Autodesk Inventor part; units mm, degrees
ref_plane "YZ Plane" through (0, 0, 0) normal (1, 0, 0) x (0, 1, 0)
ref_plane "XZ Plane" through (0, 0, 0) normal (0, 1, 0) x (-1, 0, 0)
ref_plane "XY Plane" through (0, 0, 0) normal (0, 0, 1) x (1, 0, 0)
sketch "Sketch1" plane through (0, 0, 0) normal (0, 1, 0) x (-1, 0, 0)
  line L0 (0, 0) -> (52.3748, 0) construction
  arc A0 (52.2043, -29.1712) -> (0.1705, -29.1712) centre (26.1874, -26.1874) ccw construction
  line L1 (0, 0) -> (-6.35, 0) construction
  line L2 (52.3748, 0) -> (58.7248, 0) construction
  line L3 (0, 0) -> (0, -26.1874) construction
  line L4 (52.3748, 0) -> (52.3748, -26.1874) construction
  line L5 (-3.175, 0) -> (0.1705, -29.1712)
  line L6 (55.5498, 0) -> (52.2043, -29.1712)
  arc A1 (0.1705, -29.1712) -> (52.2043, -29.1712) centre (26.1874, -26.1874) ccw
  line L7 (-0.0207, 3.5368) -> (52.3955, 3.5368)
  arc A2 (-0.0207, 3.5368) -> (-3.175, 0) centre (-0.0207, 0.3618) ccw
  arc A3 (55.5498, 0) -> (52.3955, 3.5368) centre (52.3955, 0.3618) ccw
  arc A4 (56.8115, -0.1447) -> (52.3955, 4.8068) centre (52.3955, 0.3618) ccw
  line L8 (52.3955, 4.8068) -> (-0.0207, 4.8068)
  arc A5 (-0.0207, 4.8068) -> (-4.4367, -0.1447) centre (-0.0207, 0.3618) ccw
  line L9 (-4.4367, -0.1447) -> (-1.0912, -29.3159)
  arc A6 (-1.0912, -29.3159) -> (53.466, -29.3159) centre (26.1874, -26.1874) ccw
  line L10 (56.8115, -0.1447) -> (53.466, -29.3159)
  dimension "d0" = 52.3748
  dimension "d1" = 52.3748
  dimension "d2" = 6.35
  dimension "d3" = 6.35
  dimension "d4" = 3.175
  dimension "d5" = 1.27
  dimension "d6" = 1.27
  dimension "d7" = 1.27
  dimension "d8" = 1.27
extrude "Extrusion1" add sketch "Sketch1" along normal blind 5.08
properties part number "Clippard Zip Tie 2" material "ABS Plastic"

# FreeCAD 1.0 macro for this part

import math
import FreeCAD as App
import Part
import Sketcher
Q = App.Units.Quantity

doc = App.newDocument("Part")
params = doc.addObject("Spreadsheet::Sheet", "Params")
for row, (alias, value) in enumerate([
    ("sketch1_radius", "0.125 in"),
    ("sketch1_radius2", "1.031 in"),
    ("sketch1_length", "1.156 in"),
    ("pad1_length", "0.2 in"),
], start=1):
    params.set(f"A{row}", alias)
    params.set(f"B{row}", "=" + value)
    params.setAlias(f"B{row}", alias)

body = doc.addObject("PartDesign::Body", "Body")

sketch1 = body.newObject("Sketcher::SketchObject", "Sketch")
sketch1.AttachmentSupport = (doc.getObject("XZ_Plane"), [""])
sketch1.MapMode = "FlatFace"
sketch1.addGeometry([
    Part.LineSegment(App.Vector(-53.466, -29.3159, 0), App.Vector(-56.8115, -0.1447, 0)),
    Part.ArcOfCircle(Part.Circle(App.Vector(-52.3955, 0.3618, 0), App.Vector(0, 0, 1), 4.444952), math.radians(90), math.radians(186.543037)),
    Part.LineSegment(App.Vector(-52.3955, 4.8068, 0), App.Vector(0.0207, 4.8068, 0)),
    Part.ArcOfCircle(Part.Circle(App.Vector(0.0207, 0.3618, 0), App.Vector(0, 0, 1), 4.445), math.radians(-6.543037), math.radians(90)),
    Part.LineSegment(App.Vector(4.4367, -0.1447, 0), App.Vector(1.0912, -29.3159, 0)),
    Part.ArcOfCircle(Part.Circle(App.Vector(-26.1874, -26.1874, 0), App.Vector(0, 0, 1), 27.457413), math.radians(-173.457505), math.radians(-6.542495)),
    Part.LineSegment(App.Vector(-0.1705, -29.1712, 0), App.Vector(3.175, 0, 0)),
    Part.ArcOfCircle(Part.Circle(App.Vector(0.0207, 0.3618, 0), App.Vector(0, 0, 1), 3.175), math.radians(-6.543264), math.radians(90)),
    Part.LineSegment(App.Vector(0.0207, 3.5368, 0), App.Vector(-52.3955, 3.5368, 0)),
    Part.ArcOfCircle(Part.Circle(App.Vector(-52.3955, 0.3618, 0), App.Vector(0, 0, 1), 3.174982), math.radians(90), math.radians(186.543264)),
    Part.LineSegment(App.Vector(-55.5498, 0, 0), App.Vector(-52.2043, -29.1712, 0)),
    Part.ArcOfCircle(Part.Circle(App.Vector(-26.1874, -26.1874, 0), App.Vector(0, 0, 1), 26.187443), math.radians(-173.457504), math.radians(-6.542496)),
], False)
sketch1.addConstraint([
    Sketcher.Constraint("Tangent", 0, 2, 1, 2),
    Sketcher.Constraint("Tangent", 1, 1, 2, 1),
    Sketcher.Constraint("Tangent", 2, 2, 3, 2),
    Sketcher.Constraint("Tangent", 3, 1, 4, 1),
    Sketcher.Constraint("Tangent", 4, 2, 5, 2),
    Sketcher.Constraint("Tangent", 5, 1, 0, 1),
    Sketcher.Constraint("Tangent", 6, 2, 7, 1),
    Sketcher.Constraint("Tangent", 7, 2, 8, 1),
    Sketcher.Constraint("Tangent", 8, 2, 9, 1),
    Sketcher.Constraint("Tangent", 9, 2, 10, 1),
    Sketcher.Constraint("Tangent", 10, 2, 11, 1),
    Sketcher.Constraint("Tangent", 11, 2, 6, 1),
    Sketcher.Constraint("Horizontal", 2),
    Sketcher.Constraint("Horizontal", 8),
    Sketcher.Constraint("Coincident", 7, 3, 3, 3),
    Sketcher.Constraint("Coincident", 9, 3, 1, 3),
    Sketcher.Constraint("Coincident", 11, 3, 5, 3),
    Sketcher.Constraint("Equal", 1, 3),
    Sketcher.Constraint("PointOnObject", 6, 2, -1),
    Sketcher.Constraint("PointOnObject", 9, 2, -1),
    Sketcher.Constraint("Parallel", 4, 6),
    Sketcher.Constraint("Radius", 7, Q("0.125 in")),
    Sketcher.Constraint("Radius", 11, Q("1.031 in")),
    Sketcher.Constraint("DistanceY", 7, 2, 2, 2, Q("0.05 in")),
    Sketcher.Constraint("DistanceX", -1, 1, 6, 2, Q("0.125 in")),
    Sketcher.Constraint("Distance", 0, Q("1.156 in")),
    Sketcher.Constraint("DistanceX", 5, 3, -1, 1, Q("1.031 in")),
])
sketch1.setExpression("Constraints[21]", "Params.sketch1_radius")
sketch1.setExpression("Constraints[22]", "Params.sketch1_radius2")
sketch1.setExpression("Constraints[25]", "Params.sketch1_length")
pad1 = body.newObject("PartDesign::Pad", "Pad")
pad1.Profile = sketch1
pad1.setExpression("Length", "Params.pad1_length")
pad1.Reversed = True

doc.recompute()
